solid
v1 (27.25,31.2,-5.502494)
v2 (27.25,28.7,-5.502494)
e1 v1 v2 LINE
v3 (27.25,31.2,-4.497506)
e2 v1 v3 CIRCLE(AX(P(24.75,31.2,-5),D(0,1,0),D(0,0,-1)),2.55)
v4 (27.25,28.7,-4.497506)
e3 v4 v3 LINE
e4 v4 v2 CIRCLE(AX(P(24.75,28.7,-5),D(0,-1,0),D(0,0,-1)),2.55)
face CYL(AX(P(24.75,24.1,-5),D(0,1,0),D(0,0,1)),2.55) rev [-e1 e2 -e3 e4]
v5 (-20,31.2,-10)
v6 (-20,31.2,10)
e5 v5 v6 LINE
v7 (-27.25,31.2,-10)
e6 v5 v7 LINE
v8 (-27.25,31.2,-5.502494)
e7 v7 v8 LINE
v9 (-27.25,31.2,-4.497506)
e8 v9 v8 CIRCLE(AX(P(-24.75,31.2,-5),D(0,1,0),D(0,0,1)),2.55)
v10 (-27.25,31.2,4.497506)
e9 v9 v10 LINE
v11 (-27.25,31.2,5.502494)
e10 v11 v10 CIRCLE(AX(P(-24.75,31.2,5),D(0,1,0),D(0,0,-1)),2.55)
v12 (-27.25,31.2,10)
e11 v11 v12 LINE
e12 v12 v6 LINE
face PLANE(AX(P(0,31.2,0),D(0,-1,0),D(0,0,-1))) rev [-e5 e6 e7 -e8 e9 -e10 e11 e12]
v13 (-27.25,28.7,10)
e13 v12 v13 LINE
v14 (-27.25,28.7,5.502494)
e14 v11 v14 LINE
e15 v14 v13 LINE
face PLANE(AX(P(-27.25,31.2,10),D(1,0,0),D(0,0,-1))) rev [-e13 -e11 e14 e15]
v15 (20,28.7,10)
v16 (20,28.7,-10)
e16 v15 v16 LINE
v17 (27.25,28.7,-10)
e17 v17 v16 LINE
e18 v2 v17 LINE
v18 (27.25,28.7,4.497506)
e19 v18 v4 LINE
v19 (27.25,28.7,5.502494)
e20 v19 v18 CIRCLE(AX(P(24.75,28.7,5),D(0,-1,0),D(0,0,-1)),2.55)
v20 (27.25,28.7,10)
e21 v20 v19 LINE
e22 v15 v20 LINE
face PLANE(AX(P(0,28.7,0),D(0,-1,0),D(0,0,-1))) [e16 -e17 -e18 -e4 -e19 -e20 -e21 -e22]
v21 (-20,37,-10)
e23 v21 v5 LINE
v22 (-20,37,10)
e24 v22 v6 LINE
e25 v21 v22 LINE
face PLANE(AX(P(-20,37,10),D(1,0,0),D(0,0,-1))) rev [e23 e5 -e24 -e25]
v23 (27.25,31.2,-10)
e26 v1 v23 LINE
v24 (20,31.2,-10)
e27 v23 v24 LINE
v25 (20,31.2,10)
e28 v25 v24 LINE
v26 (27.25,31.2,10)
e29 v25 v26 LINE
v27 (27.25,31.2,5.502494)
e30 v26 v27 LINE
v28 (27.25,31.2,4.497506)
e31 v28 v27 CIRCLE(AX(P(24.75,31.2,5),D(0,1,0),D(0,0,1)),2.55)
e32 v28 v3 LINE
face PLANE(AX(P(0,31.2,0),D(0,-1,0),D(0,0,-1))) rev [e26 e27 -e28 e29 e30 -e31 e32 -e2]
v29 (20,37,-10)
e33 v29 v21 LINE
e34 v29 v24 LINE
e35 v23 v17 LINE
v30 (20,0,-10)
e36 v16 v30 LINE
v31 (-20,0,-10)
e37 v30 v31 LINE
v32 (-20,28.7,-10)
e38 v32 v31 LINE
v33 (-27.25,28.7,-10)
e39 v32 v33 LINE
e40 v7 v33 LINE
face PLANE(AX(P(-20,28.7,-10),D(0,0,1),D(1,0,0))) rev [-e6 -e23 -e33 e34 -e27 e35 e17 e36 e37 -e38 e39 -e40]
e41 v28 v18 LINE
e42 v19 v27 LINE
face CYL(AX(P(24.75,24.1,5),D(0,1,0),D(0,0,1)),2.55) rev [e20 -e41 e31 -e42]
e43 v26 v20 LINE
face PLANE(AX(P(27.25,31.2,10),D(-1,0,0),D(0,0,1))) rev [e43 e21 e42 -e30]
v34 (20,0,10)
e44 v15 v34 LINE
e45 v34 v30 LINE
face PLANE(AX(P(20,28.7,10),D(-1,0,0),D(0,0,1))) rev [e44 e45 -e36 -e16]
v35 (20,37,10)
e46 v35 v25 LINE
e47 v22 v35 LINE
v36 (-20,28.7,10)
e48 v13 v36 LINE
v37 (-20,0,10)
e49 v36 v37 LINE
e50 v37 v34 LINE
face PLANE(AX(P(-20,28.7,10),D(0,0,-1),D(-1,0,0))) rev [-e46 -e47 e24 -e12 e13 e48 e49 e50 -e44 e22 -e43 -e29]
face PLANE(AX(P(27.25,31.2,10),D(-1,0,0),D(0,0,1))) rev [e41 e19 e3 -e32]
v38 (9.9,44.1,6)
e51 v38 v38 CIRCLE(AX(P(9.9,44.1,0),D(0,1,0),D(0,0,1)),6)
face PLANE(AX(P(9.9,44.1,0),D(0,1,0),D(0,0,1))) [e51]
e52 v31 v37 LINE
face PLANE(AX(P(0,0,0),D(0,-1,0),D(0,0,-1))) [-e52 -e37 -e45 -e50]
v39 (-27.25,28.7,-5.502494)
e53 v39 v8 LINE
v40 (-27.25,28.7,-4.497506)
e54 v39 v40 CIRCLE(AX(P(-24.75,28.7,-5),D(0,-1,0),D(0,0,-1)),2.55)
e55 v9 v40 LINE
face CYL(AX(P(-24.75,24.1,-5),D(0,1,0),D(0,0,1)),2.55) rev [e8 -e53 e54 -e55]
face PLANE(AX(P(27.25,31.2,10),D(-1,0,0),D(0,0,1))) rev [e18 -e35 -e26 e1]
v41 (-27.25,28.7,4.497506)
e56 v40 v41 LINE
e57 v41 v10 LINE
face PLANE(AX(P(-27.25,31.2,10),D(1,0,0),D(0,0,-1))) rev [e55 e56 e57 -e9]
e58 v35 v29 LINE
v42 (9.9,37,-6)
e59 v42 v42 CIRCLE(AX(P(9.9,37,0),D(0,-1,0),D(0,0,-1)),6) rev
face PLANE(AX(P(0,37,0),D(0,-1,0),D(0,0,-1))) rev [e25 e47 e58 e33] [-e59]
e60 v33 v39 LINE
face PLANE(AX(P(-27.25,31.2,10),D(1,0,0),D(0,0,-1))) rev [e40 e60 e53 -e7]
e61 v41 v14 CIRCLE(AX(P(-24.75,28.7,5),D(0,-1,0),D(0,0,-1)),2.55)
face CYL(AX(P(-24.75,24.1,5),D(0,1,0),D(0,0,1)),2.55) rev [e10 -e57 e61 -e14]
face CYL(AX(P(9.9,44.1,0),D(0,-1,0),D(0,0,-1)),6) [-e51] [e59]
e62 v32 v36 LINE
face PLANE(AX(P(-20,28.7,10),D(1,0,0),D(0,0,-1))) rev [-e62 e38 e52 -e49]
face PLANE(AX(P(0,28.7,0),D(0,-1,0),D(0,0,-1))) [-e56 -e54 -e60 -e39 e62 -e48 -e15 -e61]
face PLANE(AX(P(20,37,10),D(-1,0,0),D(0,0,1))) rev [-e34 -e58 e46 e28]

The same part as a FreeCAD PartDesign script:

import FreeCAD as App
import Part
import Sketcher


def add_polygon(sketch, points):
    """Adds a closed chain of lines whose ends are joined by coincident constraints."""
    first, n = sketch.GeometryCount, len(points)
    for a, b in zip(points, points[1:] + points[:1]):
        sketch.addGeometry(Part.LineSegment(App.Vector(*a, 0), App.Vector(*b, 0)), False)
    for i in range(n):
        sketch.addConstraint(Sketcher.Constraint("Coincident", first + i, 2, first + (i + 1) % n, 1))

doc = App.newDocument("Part")
body = doc.addObject("PartDesign::Body", "Body")

sketch1 = body.newObject("Sketcher::SketchObject", "Sketch")
sketch1.AttachmentSupport = (doc.getObject("XZ_Plane"), [""])
sketch1.MapMode = "FlatFace"
add_polygon(sketch1, [(-20, -10), (-20, 10), (20, 10), (20, -10)])
sketch1.addConstraint(Sketcher.Constraint("Vertical", 0))
sketch1.addConstraint(Sketcher.Constraint("Horizontal", 1))
sketch1.addConstraint(Sketcher.Constraint("Vertical", 2))
sketch1.addConstraint(Sketcher.Constraint("Horizontal", 3))
sketch1.addConstraint(Sketcher.Constraint("Symmetric", 0, 2, 2, 2, -1, 1))
sketch1.addConstraint(Sketcher.Constraint("DistanceX", 1, 1, 1, 2, 40.0))
sketch1.addConstraint(Sketcher.Constraint("DistanceY", 0, 1, 0, 2, 20.0))
pad1 = body.newObject("PartDesign::Pad", "Pad")
pad1.Profile = sketch1
pad1.Length = 28.7
pad1.Reversed = True

sketch2 = body.newObject("Sketcher::SketchObject", "Sketch001")
sketch2.AttachmentSupport = (doc.getObject("XZ_Plane"), [""])
sketch2.MapMode = "FlatFace"
sketch2.AttachmentOffset = App.Placement(App.Vector(0, 0, -28.7), App.Rotation())
add_polygon(sketch2, [(-27, -10), (-27, 10), (27, 10), (27, -10)])
sketch2.addConstraint(Sketcher.Constraint("Vertical", 0))
sketch2.addConstraint(Sketcher.Constraint("Horizontal", 1))
sketch2.addConstraint(Sketcher.Constraint("Vertical", 2))
sketch2.addConstraint(Sketcher.Constraint("Horizontal", 3))
sketch2.addConstraint(Sketcher.Constraint("Symmetric", 0, 2, 2, 2, -1, 1))
sketch2.addConstraint(Sketcher.Constraint("DistanceY", 0, 1, 0, 2, 20.0))
sketch2.addConstraint(Sketcher.Constraint("DistanceX", 1, 1, 1, 2, 54.5))
pad2 = body.newObject("PartDesign::Pad", "Pad001")
pad2.Profile = sketch2
pad2.Length = 2.5
pad2.Reversed = True

sketch3 = body.newObject("Sketcher::SketchObject", "Sketch002")
sketch3.AttachmentSupport = (doc.getObject("XZ_Plane"), [""])
sketch3.MapMode = "FlatFace"
sketch3.AttachmentOffset = App.Placement(App.Vector(0, 0, -31.2), App.Rotation())
add_polygon(sketch3, [(-20, -10), (-20, 10), (20, 10), (20, -10)])
sketch3.addConstraint(Sketcher.Constraint("Vertical", 0))
sketch3.addConstraint(Sketcher.Constraint("Horizontal", 1))
sketch3.addConstraint(Sketcher.Constraint("Vertical", 2))
sketch3.addConstraint(Sketcher.Constraint("Horizontal", 3))
sketch3.addConstraint(Sketcher.Constraint("Symmetric", 0, 2, 2, 2, -1, 1))
sketch3.addConstraint(Sketcher.Constraint("DistanceX", 1, 1, 1, 2, 40.0))
sketch3.addConstraint(Sketcher.Constraint("DistanceY", 0, 1, 0, 2, 20.0))
pad3 = body.newObject("PartDesign::Pad", "Pad002")
pad3.Profile = sketch3
pad3.Length = 5.8
pad3.Reversed = True

sketch4 = body.newObject("Sketcher::SketchObject", "Sketch003")
sketch4.AttachmentSupport = (doc.getObject("XZ_Plane"), [""])
sketch4.MapMode = "FlatFace"
sketch4.AttachmentOffset = App.Placement(App.Vector(0, 0, -37), App.Rotation())
sketch4.addGeometry(Part.Circle(App.Vector(10, 0, 0), App.Vector(0, 0, 1), 6), False)
sketch4.addConstraint(Sketcher.Constraint("PointOnObject", 0, 3, -1))
sketch4.addConstraint(Sketcher.Constraint("Diameter", 0, 12.0))
sketch4.addConstraint(Sketcher.Constraint("DistanceX", -1, 1, 0, 3, 9.9))
pad4 = body.newObject("PartDesign::Pad", "Pad003")
pad4.Profile = sketch4
pad4.Length = 7.1
pad4.Reversed = True

sketch5 = body.newObject("Sketcher::SketchObject", "Sketch004")
sketch5.AttachmentSupport = (doc.getObject("XZ_Plane"), [""])
sketch5.MapMode = "FlatFace"
sketch5.AttachmentOffset = App.Placement(App.Vector(0, 0, -31.2), App.Rotation())
sketch5.addGeometry(Part.Circle(App.Vector(-24.8, -5, 0), App.Vector(0, 0, 1), 2.5), False)
sketch5.addGeometry(Part.Circle(App.Vector(-24.8, 5, 0), App.Vector(0, 0, 1), 2.5), False)
sketch5.addGeometry(Part.Circle(App.Vector(24.8, 5, 0), App.Vector(0, 0, 1), 2.5), False)
sketch5.addGeometry(Part.Circle(App.Vector(24.8, -5, 0), App.Vector(0, 0, 1), 2.5), False)
sketch5.addConstraint(Sketcher.Constraint("Equal", 0, 1))
sketch5.addConstraint(Sketcher.Constraint("Equal", 1, 2))
sketch5.addConstraint(Sketcher.Constraint("Equal", 2, 3))
sketch5.addConstraint(Sketcher.Constraint("Symmetric", 0, 3, 2, 3, -1, 1))
sketch5.addConstraint(Sketcher.Constraint("Symmetric", 1, 3, 3, 3, -1, 1))
sketch5.addConstraint(Sketcher.Constraint("Symmetric", 1, 3, 2, 3, -2))
sketch5.addConstraint(Sketcher.Constraint("Diameter", 0, 5.1))
sketch5.addConstraint(Sketcher.Constraint("DistanceY", 0, 3, -1, 1, 5.0))
sketch5.addConstraint(Sketcher.Constraint("DistanceX", 1, 3, 2, 3, 49.5))
pocket1 = body.newObject("PartDesign::Pocket", "Pocket")
pocket1.Profile = sketch5
pocket1.Length = 7.1
pocket1.Reversed = True

doc.recompute()
